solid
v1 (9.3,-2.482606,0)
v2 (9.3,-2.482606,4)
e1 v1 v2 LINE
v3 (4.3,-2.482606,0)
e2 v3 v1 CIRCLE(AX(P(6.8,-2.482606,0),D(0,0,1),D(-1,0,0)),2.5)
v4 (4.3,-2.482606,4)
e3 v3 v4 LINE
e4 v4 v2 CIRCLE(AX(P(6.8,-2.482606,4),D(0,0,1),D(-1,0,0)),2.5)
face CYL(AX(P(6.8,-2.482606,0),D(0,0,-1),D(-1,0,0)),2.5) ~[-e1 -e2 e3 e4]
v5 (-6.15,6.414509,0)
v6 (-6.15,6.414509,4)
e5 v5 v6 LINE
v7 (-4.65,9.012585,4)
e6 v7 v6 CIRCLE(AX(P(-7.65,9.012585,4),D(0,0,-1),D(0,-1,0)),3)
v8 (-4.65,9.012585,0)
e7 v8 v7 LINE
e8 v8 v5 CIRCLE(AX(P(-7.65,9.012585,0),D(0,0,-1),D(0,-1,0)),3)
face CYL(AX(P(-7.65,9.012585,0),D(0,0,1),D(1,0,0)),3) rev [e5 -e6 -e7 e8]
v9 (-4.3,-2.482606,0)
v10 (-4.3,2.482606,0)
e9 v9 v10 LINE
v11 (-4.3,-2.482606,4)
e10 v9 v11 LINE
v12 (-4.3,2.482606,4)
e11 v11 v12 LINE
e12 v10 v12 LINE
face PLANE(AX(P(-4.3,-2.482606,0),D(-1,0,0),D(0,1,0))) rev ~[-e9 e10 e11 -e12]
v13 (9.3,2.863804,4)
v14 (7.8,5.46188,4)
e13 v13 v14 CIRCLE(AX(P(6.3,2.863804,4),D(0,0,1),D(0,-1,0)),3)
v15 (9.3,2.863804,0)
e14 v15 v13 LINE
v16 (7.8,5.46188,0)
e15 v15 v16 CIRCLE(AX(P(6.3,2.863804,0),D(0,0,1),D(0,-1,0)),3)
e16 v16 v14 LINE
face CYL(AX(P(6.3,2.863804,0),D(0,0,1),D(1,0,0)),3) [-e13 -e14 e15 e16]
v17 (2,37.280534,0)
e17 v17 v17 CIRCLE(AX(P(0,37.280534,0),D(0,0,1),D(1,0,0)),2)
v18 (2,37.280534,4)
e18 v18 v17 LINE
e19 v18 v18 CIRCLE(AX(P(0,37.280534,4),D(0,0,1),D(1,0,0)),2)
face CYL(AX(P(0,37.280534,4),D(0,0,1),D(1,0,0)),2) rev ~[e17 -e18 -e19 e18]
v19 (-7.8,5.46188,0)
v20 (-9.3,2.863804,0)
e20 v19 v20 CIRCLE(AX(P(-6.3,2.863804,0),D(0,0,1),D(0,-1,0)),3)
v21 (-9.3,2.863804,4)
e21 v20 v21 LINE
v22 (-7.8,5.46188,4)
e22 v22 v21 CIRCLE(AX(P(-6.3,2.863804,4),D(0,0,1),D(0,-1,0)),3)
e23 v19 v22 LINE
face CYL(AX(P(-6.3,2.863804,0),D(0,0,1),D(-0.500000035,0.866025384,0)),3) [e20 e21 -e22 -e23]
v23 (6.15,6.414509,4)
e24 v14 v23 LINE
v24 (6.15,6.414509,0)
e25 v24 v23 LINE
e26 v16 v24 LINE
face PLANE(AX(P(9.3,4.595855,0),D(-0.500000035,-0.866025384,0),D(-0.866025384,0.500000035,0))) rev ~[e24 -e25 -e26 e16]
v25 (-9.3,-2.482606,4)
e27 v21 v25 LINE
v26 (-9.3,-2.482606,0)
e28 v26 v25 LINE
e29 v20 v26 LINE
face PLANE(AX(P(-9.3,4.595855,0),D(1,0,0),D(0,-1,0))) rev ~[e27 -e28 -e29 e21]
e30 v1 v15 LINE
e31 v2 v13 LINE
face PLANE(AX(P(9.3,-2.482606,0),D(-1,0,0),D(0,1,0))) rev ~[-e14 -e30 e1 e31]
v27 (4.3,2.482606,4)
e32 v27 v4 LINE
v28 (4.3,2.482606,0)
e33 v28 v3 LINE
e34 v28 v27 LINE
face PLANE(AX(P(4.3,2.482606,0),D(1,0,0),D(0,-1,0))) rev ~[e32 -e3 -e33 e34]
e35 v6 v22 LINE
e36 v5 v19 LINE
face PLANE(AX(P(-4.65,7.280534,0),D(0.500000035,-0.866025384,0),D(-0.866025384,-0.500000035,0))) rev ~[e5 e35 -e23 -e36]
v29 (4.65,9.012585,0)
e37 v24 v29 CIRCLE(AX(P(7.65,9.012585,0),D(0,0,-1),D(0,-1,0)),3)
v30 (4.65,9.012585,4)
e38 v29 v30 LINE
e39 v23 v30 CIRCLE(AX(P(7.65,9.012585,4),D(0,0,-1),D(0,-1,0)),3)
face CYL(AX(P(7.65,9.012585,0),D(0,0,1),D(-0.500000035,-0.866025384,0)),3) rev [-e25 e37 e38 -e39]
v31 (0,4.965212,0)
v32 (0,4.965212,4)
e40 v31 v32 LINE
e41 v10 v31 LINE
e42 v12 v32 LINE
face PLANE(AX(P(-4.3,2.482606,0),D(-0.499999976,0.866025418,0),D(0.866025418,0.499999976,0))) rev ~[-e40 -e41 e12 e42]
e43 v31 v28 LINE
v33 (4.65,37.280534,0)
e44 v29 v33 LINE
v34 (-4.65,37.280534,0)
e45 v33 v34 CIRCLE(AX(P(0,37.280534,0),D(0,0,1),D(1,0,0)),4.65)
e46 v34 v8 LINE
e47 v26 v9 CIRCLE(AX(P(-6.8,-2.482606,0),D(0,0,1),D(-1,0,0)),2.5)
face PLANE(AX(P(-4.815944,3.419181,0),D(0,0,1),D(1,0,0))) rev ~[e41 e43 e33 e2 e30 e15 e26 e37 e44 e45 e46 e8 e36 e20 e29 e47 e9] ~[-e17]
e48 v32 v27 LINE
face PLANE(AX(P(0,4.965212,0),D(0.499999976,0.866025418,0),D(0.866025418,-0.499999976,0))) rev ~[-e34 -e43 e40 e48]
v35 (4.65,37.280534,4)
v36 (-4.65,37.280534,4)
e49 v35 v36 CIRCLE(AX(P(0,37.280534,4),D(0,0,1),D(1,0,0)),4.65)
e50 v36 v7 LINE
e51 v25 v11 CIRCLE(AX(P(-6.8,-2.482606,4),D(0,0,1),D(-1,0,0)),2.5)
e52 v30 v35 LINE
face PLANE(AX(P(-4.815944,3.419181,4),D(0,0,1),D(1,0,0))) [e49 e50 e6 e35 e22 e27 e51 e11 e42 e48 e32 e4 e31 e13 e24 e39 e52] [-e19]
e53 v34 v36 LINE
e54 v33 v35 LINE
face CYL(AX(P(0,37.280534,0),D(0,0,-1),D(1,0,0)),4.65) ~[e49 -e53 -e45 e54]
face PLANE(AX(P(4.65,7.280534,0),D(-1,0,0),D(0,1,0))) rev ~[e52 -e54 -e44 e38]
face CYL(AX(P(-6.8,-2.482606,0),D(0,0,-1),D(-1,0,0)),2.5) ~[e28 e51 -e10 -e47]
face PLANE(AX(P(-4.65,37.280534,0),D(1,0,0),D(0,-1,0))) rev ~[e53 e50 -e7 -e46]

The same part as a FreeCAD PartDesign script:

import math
import FreeCAD as App
import Part
import Sketcher
from FreeCAD import Vector
Q = App.Units.Quantity


def edges_at(feature, points):
    """Names of the edges that pass closest to the given points."""
    edges = feature.Shape.Edges
    near = lambda p: min(range(len(edges)), key=lambda i: edges[i].distToShape(Part.Vertex(*p))[0])
    return sorted({f"Edge{near(p) + 1}" for p in points})

doc = App.newDocument("Part")
body = doc.addObject("PartDesign::Body", "Body")

# Sketch on XY plane
sketch1 = body.newObject("Sketcher::SketchObject", "Sketch")
sketch1.AttachmentSupport = (doc.getObject("XY_Plane"), [""])
sketch1.MapMode = "FlatFace"
sketch1.addGeometry(Part.LineSegment(Vector(-4.3, 2.482606, 0), Vector(0, 4.965212, 0)), False)
sketch1.addGeometry(Part.LineSegment(Vector(0, 4.965212, 0), Vector(4.3, 2.482606, 0)), False)
sketch1.addGeometry(Part.LineSegment(Vector(4.3, 2.482606, 0), Vector(4.3, -2.482606, 0)), False)
sketch1.addGeometry(Part.ArcOfCircle(Part.Circle(Vector(6.8, -2.482606, 0), Vector(0, 0, 1), 2.5), math.radians(180), math.radians(360)), False)
sketch1.addGeometry(Part.LineSegment(Vector(9.3, -2.482606, 0), Vector(9.3, 4.595855, 0)), False)
sketch1.addGeometry(Part.LineSegment(Vector(9.3, 4.595855, 0), Vector(4.65, 7.280534, 0)), False)
sketch1.addGeometry(Part.LineSegment(Vector(4.65, 7.280534, 0), Vector(4.65, 37.280534, 0)), False)
sketch1.addGeometry(Part.ArcOfCircle(Part.Circle(Vector(0, 37.280534, 0), Vector(0, 0, 1), 4.65), math.radians(0), math.radians(180)), False)
sketch1.addGeometry(Part.LineSegment(Vector(-4.65, 37.280534, 0), Vector(-4.65, 7.280534, 0)), False)
sketch1.addGeometry(Part.LineSegment(Vector(-4.65, 7.280534, 0), Vector(-9.3, 4.595855, 0)), False)
sketch1.addGeometry(Part.LineSegment(Vector(-9.3, 4.595855, 0), Vector(-9.3, -2.482606, 0)), False)
sketch1.addGeometry(Part.ArcOfCircle(Part.Circle(Vector(-6.8, -2.482606, 0), Vector(0, 0, 1), 2.5), math.radians(180), math.radians(360)), False)
sketch1.addGeometry(Part.LineSegment(Vector(-4.3, -2.482606, 0), Vector(-4.3, 2.482606, 0)), False)
sketch1.addConstraint(Sketcher.Constraint("Coincident", 0, 2, 1, 1))
sketch1.addConstraint(Sketcher.Constraint("Coincident", 1, 2, 2, 1))
sketch1.addConstraint(Sketcher.Constraint("Tangent", 2, 2, 3, 1))
sketch1.addConstraint(Sketcher.Constraint("Tangent", 3, 2, 4, 1))
sketch1.addConstraint(Sketcher.Constraint("Coincident", 4, 2, 5, 1))
sketch1.addConstraint(Sketcher.Constraint("Coincident", 5, 2, 6, 1))
sketch1.addConstraint(Sketcher.Constraint("Tangent", 6, 2, 7, 1))
sketch1.addConstraint(Sketcher.Constraint("Tangent", 7, 2, 8, 1))
sketch1.addConstraint(Sketcher.Constraint("Coincident", 8, 2, 9, 1))
sketch1.addConstraint(Sketcher.Constraint("Coincident", 9, 2, 10, 1))
sketch1.addConstraint(Sketcher.Constraint("Tangent", 10, 2, 11, 1))
sketch1.addConstraint(Sketcher.Constraint("Tangent", 11, 2, 12, 1))
sketch1.addConstraint(Sketcher.Constraint("Coincident", 12, 2, 0, 1))
sketch1.addConstraint(Sketcher.Constraint("Vertical", 2))
sketch1.addConstraint(Sketcher.Constraint("Vertical", 4))
sketch1.addConstraint(Sketcher.Constraint("Vertical", 6))
sketch1.addConstraint(Sketcher.Constraint("Vertical", 8))
sketch1.addConstraint(Sketcher.Constraint("Vertical", 10))
sketch1.addConstraint(Sketcher.Constraint("Vertical", 12))
sketch1.addConstraint(Sketcher.Constraint("Equal", 3, 11))
sketch1.addConstraint(Sketcher.Constraint("Symmetric", 1, 2, 11, 2, -1, 1))
sketch1.addConstraint(Sketcher.Constraint("Symmetric", 5, 2, 8, 2, -2))
sketch1.addConstraint(Sketcher.Constraint("PointOnObject", 0, 2, -2))
sketch1.addConstraint(Sketcher.Constraint("Parallel", 1, 5))
sketch1.addConstraint(Sketcher.Constraint("Parallel", 0, 9))
sketch1.addConstraint(Sketcher.Constraint("Horizontal", 3, 3, 11, 3))
sketch1.addConstraint(Sketcher.Constraint("Horizontal", 4, 2, 9, 2))
sketch1.addConstraint(Sketcher.Constraint("Radius", 3, Q("2.5 mm")))
sketch1.addConstraint(Sketcher.Constraint("DistanceY", 6, 1, 6, 2, Q("30 mm")))
sketch1.addConstraint(Sketcher.Constraint("Angle", 0, Q("29.999998 deg")))
sketch1.addConstraint(Sketcher.Constraint("Radius", 7, Q("4.65 mm")))
sketch1.addConstraint(Sketcher.Constraint("DistanceX", -1, 1, 3, 3, Q("6.8 mm")))
sketch1.addConstraint(Sketcher.Constraint("DistanceY", 4, 1, 4, 2, Q("7.078461 mm")))
sketch1.addConstraint(Sketcher.Constraint("DistanceY", 2, 2, 2, 1, Q("4.965212 mm")))
pad1 = body.newObject("PartDesign::Pad", "Pad")
pad1.Profile = sketch1
pad1.Length = 4
doc.recompute()

fillet = body.newObject("PartDesign::Fillet", "Fillet")
fillet.Base = (pad1, edges_at(pad1, [
    (9.3, 4.596, 2),
    (4.65, 7.281, 2),
    (-4.65, 7.281, 2),
    (-9.3, 4.596, 2),
]))
fillet.Radius = 3

# Sketch on XY plane
sketch2 = body.newObject("Sketcher::SketchObject", "Sketch001")
sketch2.AttachmentSupport = (doc.getObject("XY_Plane"), [""])
sketch2.MapMode = "FlatFace"
sketch2.AttachmentOffset = App.Placement(Vector(0, 0, 4), App.Rotation())
sketch2.addGeometry(Part.Circle(Vector(0, 37.280534, 0), Vector(0, 0, 1), 2), False)
sketch2.addConstraint(Sketcher.Constraint("PointOnObject", 0, 3, -2))
sketch2.addConstraint(Sketcher.Constraint("Diameter", 0, Q("4 mm")))
sketch2.addConstraint(Sketcher.Constraint("DistanceY", -1, 1, 0, 3, Q("37.280534 mm")))
pocket1 = body.newObject("PartDesign::Pocket", "Pocket")
pocket1.Profile = sketch2
pocket1.Type = "ThroughAll"

doc.recompute()
